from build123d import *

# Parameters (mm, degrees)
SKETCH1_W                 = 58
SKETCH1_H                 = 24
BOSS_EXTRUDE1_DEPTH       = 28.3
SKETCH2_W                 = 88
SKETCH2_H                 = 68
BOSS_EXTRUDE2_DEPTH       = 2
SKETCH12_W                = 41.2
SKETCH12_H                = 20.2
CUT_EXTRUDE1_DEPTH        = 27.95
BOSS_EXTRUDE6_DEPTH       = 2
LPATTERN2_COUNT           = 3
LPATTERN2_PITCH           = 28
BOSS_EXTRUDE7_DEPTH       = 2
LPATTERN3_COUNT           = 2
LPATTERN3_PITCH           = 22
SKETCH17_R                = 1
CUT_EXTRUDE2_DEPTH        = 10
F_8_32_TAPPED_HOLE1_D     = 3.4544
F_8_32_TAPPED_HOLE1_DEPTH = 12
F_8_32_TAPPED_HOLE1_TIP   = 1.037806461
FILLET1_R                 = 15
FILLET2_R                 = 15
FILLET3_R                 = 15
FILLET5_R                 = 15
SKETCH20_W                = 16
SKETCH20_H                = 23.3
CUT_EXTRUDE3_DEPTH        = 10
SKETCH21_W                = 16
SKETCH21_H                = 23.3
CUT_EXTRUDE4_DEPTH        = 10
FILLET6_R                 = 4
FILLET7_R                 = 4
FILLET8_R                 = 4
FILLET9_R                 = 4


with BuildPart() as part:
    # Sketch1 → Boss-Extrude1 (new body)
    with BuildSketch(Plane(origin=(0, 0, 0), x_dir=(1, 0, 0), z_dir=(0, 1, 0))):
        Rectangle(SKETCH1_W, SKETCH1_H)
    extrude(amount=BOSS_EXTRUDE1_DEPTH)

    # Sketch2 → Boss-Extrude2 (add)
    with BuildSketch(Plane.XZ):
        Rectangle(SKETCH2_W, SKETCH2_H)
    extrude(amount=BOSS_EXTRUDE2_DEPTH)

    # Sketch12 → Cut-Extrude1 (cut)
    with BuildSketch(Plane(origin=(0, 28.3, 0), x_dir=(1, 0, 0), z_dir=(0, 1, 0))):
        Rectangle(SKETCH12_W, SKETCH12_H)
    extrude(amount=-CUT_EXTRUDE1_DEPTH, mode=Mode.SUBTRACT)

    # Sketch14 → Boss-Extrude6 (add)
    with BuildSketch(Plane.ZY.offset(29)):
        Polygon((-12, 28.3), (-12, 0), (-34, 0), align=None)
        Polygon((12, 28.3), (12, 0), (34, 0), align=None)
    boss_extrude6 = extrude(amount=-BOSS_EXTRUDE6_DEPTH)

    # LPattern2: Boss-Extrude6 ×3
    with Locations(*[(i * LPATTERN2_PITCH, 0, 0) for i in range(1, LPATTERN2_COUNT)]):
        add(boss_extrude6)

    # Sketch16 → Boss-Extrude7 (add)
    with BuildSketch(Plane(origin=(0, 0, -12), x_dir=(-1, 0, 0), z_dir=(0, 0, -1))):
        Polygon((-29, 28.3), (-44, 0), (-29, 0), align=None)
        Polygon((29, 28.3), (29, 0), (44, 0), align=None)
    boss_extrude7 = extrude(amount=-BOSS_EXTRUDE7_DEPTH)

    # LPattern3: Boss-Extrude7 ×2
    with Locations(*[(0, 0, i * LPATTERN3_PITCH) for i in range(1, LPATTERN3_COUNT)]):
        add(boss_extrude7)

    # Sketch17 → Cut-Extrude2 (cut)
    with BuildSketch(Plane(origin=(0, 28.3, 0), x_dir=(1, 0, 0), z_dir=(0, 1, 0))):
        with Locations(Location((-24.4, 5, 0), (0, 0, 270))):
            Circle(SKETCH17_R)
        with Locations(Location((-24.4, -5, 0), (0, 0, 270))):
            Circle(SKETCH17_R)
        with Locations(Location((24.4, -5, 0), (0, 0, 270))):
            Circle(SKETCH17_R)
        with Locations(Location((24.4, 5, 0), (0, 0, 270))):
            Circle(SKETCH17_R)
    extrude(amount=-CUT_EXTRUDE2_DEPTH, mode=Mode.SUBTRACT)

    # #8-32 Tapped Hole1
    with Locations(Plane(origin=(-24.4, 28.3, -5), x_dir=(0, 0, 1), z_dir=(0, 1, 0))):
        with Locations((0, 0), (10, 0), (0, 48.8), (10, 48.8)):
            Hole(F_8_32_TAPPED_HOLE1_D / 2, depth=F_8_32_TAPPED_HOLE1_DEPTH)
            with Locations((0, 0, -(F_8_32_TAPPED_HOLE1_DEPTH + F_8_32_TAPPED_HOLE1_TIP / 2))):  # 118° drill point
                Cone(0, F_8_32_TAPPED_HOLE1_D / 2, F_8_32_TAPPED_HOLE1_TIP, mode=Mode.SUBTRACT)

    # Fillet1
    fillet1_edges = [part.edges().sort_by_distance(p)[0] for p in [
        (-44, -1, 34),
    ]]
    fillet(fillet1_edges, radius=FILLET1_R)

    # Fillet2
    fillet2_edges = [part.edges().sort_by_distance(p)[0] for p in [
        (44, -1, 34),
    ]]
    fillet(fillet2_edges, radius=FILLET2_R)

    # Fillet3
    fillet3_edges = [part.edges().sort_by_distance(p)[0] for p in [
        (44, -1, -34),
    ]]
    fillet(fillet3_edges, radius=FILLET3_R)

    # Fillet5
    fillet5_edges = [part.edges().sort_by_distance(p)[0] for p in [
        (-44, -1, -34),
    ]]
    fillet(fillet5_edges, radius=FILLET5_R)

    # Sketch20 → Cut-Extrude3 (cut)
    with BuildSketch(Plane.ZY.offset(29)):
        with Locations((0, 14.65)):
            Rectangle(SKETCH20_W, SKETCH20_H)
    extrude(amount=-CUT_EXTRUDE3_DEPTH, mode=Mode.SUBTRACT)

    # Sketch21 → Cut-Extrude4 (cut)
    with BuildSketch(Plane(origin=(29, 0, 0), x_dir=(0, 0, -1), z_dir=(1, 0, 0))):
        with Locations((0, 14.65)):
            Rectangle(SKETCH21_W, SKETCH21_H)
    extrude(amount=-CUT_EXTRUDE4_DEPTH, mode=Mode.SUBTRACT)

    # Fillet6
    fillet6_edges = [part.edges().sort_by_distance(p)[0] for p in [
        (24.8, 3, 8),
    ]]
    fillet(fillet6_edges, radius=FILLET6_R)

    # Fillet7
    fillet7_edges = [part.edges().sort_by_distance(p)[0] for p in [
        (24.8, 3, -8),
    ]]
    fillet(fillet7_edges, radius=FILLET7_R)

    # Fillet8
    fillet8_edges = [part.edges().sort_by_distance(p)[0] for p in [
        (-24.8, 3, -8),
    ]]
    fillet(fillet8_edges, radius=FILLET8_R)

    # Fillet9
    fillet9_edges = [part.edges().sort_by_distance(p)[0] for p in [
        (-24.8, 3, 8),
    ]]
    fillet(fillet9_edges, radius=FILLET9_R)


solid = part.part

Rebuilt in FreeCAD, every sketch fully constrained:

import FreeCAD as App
import Part
import Sketcher
from FreeCAD import Vector
Q = App.Units.Quantity


def edges_at(feature, points):
    """Names of the edges that pass closest to the given points."""
    edges = feature.Shape.Edges
    near = lambda p: min(range(len(edges)), key=lambda i: edges[i].distToShape(Part.Vertex(*p))[0])
    return sorted({f"Edge{near(p) + 1}" for p in points})


def add_polygon(sketch, points):
    """Adds a closed chain of lines whose ends are joined by coincident constraints."""
    first, n = sketch.GeometryCount, len(points)
    for a, b in zip(points, points[1:] + points[:1]):
        sketch.addGeometry(Part.LineSegment(App.Vector(*a, 0), App.Vector(*b, 0)), False)
    for i in range(n):
        sketch.addConstraint(Sketcher.Constraint("Coincident", first + i, 2, first + (i + 1) % n, 1))

doc = App.newDocument("Part")
body = doc.addObject("PartDesign::Body", "Body")

# Sketch on XZ plane
sketch1 = body.newObject("Sketcher::SketchObject", "Sketch")
sketch1.AttachmentSupport = (doc.getObject("XZ_Plane"), [""])
sketch1.MapMode = "FlatFace"
add_polygon(sketch1, [(-29, -12), (-29, 12), (29, 12), (29, -12)])  # lines 0-3
sketch1.addConstraint([
    Sketcher.Constraint("Vertical", 0),
    Sketcher.Constraint("Horizontal", 1),
    Sketcher.Constraint("Vertical", 2),
    Sketcher.Constraint("Horizontal", 3),
    Sketcher.Constraint("Symmetric", 0, 2, 2, 2, -1, 1),
    Sketcher.Constraint("DistanceX", 1, 1, 1, 2, Q("58 mm")),
    Sketcher.Constraint("DistanceY", 0, 1, 0, 2, Q("24 mm")),
])
pad1 = body.newObject("PartDesign::Pad", "Pad")
pad1.Profile = sketch1
pad1.Length = 28.3
pad1.Reversed = True

# Sketch on XZ plane
sketch2 = body.newObject("Sketcher::SketchObject", "Sketch001")
sketch2.AttachmentSupport = (doc.getObject("XZ_Plane"), [""])
sketch2.MapMode = "FlatFace"
add_polygon(sketch2, [(-44, 34), (-44, -34), (44, -34), (44, 34)])  # lines 0-3
sketch2.addConstraint([
    Sketcher.Constraint("Vertical", 0),
    Sketcher.Constraint("Horizontal", 1),
    Sketcher.Constraint("Vertical", 2),
    Sketcher.Constraint("Horizontal", 3),
    Sketcher.Constraint("Symmetric", 0, 2, 2, 2, -1, 1),
    Sketcher.Constraint("DistanceX", 1, 1, 1, 2, Q("88 mm")),
    Sketcher.Constraint("DistanceY", 0, 2, 0, 1, Q("68 mm")),
])
pad2 = body.newObject("PartDesign::Pad", "Pad001")
pad2.Profile = sketch2
pad2.Length = 2

# Sketch on XZ plane
sketch3 = body.newObject("Sketcher::SketchObject", "Sketch002")
sketch3.AttachmentSupport = (doc.getObject("XZ_Plane"), [""])
sketch3.MapMode = "FlatFace"
sketch3.AttachmentOffset = App.Placement(Vector(0, 0, -28.3), App.Rotation())
add_polygon(sketch3, [(-20.6, -10.1), (-20.6, 10.1), (20.6, 10.1), (20.6, -10.1)])  # lines 0-3
sketch3.addConstraint([
    Sketcher.Constraint("Vertical", 0),
    Sketcher.Constraint("Horizontal", 1),
    Sketcher.Constraint("Vertical", 2),
    Sketcher.Constraint("Horizontal", 3),
    Sketcher.Constraint("Symmetric", 0, 2, 2, 2, -1, 1),
    Sketcher.Constraint("DistanceX", 1, 1, 1, 2, Q("41.2 mm")),
    Sketcher.Constraint("DistanceY", 0, 1, 0, 2, Q("20.2 mm")),
])
pocket1 = body.newObject("PartDesign::Pocket", "Pocket")
pocket1.Profile = sketch3
pocket1.Length = 27.95
pocket1.Reversed = True

# Sketch on YZ plane
sketch4 = body.newObject("Sketcher::SketchObject", "Sketch003")
sketch4.AttachmentSupport = (doc.getObject("YZ_Plane"), [""])
sketch4.MapMode = "FlatFace"
sketch4.AttachmentOffset = App.Placement(Vector(0, 0, -29), App.Rotation())
add_polygon(sketch4, [(0, -12), (28.3, -12), (0, -34)])  # lines 0-2
add_polygon(sketch4, [(28.3, 12), (0, 12), (0, 34)])  # lines 3-5
sketch4.addConstraint([
    Sketcher.Constraint("Horizontal", 0),
    Sketcher.Constraint("Vertical", 2),
    Sketcher.Constraint("Horizontal", 3),
    Sketcher.Constraint("Vertical", 4),
    Sketcher.Constraint("Symmetric", 2, 2, 3, 2, -1, 1),
    Sketcher.Constraint("Symmetric", 1, 2, 4, 2, -1),
    Sketcher.Constraint("Vertical", 0, 2, 5, 2),
    Sketcher.Constraint("DistanceY", 2, 1, 2, 2, Q("22 mm")),
    Sketcher.Constraint("DistanceX", 0, 1, 0, 2, Q("28.3 mm")),
    Sketcher.Constraint("DistanceY", 0, 2, -1, 1, Q("12 mm")),
])
pad3 = body.newObject("PartDesign::Pad", "Pad002")
pad3.Profile = sketch4
pad3.Length = 2
doc.recompute()

linearpattern = body.newObject("PartDesign::LinearPattern", "LinearPattern")
linearpattern.Originals = [pad3]
linearpattern.Direction = (doc.getObject("X_Axis"), [""])
linearpattern.Mode = "offset"
linearpattern.Offset = 28
linearpattern.Occurrences = 3
body.Tip = linearpattern

# Sketch on XY plane
sketch5 = body.newObject("Sketcher::SketchObject", "Sketch004")
sketch5.AttachmentSupport = (doc.getObject("XY_Plane"), [""])
sketch5.MapMode = "FlatFace"
sketch5.AttachmentOffset = App.Placement(Vector(0, 0, -12), App.Rotation())
add_polygon(sketch5, [(29, 28.3), (44, 0), (29, 0)])  # lines 0-2
add_polygon(sketch5, [(-29, 28.3), (-29, 0), (-44, 0)])  # lines 3-5
sketch5.addConstraint([
    Sketcher.Constraint("Horizontal", 1),
    Sketcher.Constraint("Vertical", 2),
    Sketcher.Constraint("Vertical", 3),
    Sketcher.Constraint("Horizontal", 4),
    Sketcher.Constraint("Symmetric", 1, 2, 3, 2, -1, 1),
    Sketcher.Constraint("Symmetric", 0, 2, 4, 2, -2),
    Sketcher.Constraint("Horizontal", 2, 2, 5, 2),
    Sketcher.Constraint("DistanceX", 1, 2, 1, 1, Q("15 mm")),
    Sketcher.Constraint("DistanceY", 2, 1, 2, 2, Q("28.3 mm")),
    Sketcher.Constraint("DistanceX", -1, 1, 0, 2, Q("44 mm")),
])
pad4 = body.newObject("PartDesign::Pad", "Pad003")
pad4.Profile = sketch5
pad4.Length = 2
doc.recompute()

linearpattern2 = body.newObject("PartDesign::LinearPattern", "LinearPattern001")
linearpattern2.Originals = [pad4]
linearpattern2.Direction = (doc.getObject("Z_Axis"), [""])
linearpattern2.Mode = "offset"
linearpattern2.Offset = 22
linearpattern2.Occurrences = 2
body.Tip = linearpattern2

# Sketch on XZ plane
sketch6 = body.newObject("Sketcher::SketchObject", "Sketch005")
sketch6.AttachmentSupport = (doc.getObject("XZ_Plane"), [""])
sketch6.MapMode = "FlatFace"
sketch6.AttachmentOffset = App.Placement(Vector(0, 0, -28.3), App.Rotation())
sketch6.addGeometry([
    Part.Circle(Vector(-24.4, -5, 0), Vector(0, 0, 1), 1),
    Part.Circle(Vector(-24.4, 5, 0), Vector(0, 0, 1), 1),
    Part.Circle(Vector(24.4, 5, 0), Vector(0, 0, 1), 1),
    Part.Circle(Vector(24.4, -5, 0), Vector(0, 0, 1), 1),
], False)
sketch6.addConstraint([
    Sketcher.Constraint("Equal", 0, 1),
    Sketcher.Constraint("Equal", 1, 2),
    Sketcher.Constraint("Equal", 2, 3),
    Sketcher.Constraint("Symmetric", 0, 3, 2, 3, -1, 1),
    Sketcher.Constraint("Symmetric", 1, 3, 3, 3, -1, 1),
    Sketcher.Constraint("Symmetric", 1, 3, 2, 3, -2),
    Sketcher.Constraint("Diameter", 0, Q("2 mm")),
    Sketcher.Constraint("DistanceY", 0, 3, -1, 1, Q("5 mm")),
    Sketcher.Constraint("DistanceX", 0, 3, -1, 1, Q("24.4 mm")),
])
pocket2 = body.newObject("PartDesign::Pocket", "Pocket001")
pocket2.Profile = sketch6
pocket2.Length = 10
pocket2.Reversed = True

# Sketch on XZ plane
sketch7 = body.newObject("Sketcher::SketchObject", "Sketch006")
sketch7.AttachmentSupport = (doc.getObject("XZ_Plane"), [""])
sketch7.MapMode = "FlatFace"
sketch7.AttachmentOffset = App.Placement(Vector(0, 0, -28.3), App.Rotation())
sketch7.addGeometry([
    Part.Circle(Vector(-24.4, -5, 0), Vector(0, 0, 1), 1.7272),
    Part.Circle(Vector(-24.4, 5, 0), Vector(0, 0, 1), 1.7272),
    Part.Circle(Vector(24.4, -5, 0), Vector(0, 0, 1), 1.7272),
    Part.Circle(Vector(24.4, 5, 0), Vector(0, 0, 1), 1.7272),
], False)
sketch7.addConstraint([
    Sketcher.Constraint("Equal", 0, 1),
    Sketcher.Constraint("Equal", 1, 2),
    Sketcher.Constraint("Equal", 2, 3),
    Sketcher.Constraint("Symmetric", 1, 3, 2, 3, -1, 1),
    Sketcher.Constraint("Symmetric", 0, 3, 3, 3, -1, 1),
    Sketcher.Constraint("Symmetric", 0, 3, 2, 3, -2),
    Sketcher.Constraint("DistanceY", 0, 3, -1, 1, Q("5 mm")),
    Sketcher.Constraint("Diameter", 0, Q("3.4544 mm")),
    Sketcher.Constraint("DistanceX", 0, 3, -1, 1, Q("24.4 mm")),
])
doc.recompute()
hole = body.newObject("PartDesign::Hole", "Hole")
hole.Profile = sketch7
hole.ThreadType = "None"
hole.Diameter = 3.4544
hole.DepthType = "Dimension"
hole.Depth = 12
hole.DrillPoint = "Angled"
hole.DrillPointAngle = 118
hole.Reversed = True
doc.recompute()

fillet = body.newObject("PartDesign::Fillet", "Fillet")
fillet.Base = (hole, edges_at(hole, [(-44, -1, 34)]))
fillet.Radius = 15
doc.recompute()

fillet2 = body.newObject("PartDesign::Fillet", "Fillet001")
fillet2.Base = (fillet, edges_at(fillet, [(44, -1, 34)]))
fillet2.Radius = 15
doc.recompute()

fillet3 = body.newObject("PartDesign::Fillet", "Fillet002")
fillet3.Base = (fillet2, edges_at(fillet2, [(44, -1, -34)]))
fillet3.Radius = 15
doc.recompute()

fillet4 = body.newObject("PartDesign::Fillet", "Fillet003")
fillet4.Base = (fillet3, edges_at(fillet3, [(-44, -1, -34)]))
fillet4.Radius = 15

# Sketch on YZ plane
sketch8 = body.newObject("Sketcher::SketchObject", "Sketch007")
sketch8.AttachmentSupport = (doc.getObject("YZ_Plane"), [""])
sketch8.MapMode = "FlatFace"
sketch8.AttachmentOffset = App.Placement(Vector(0, 0, -29), App.Rotation())
add_polygon(sketch8, [(26.3, -8), (3, -8), (3, 8), (26.3, 8)])  # lines 0-3
sketch8.addConstraint([
    Sketcher.Constraint("Horizontal", 0),
    Sketcher.Constraint("Vertical", 1),
    Sketcher.Constraint("Horizontal", 2),
    Sketcher.Constraint("Vertical", 3),
    Sketcher.Constraint("DistanceY", 1, 1, 1, 2, Q("16 mm")),
    Sketcher.Constraint("DistanceX", 0, 2, 0, 1, Q("23.3 mm")),
    Sketcher.Constraint("DistanceX", -1, 1, 0, 2, Q("3 mm")),
    Sketcher.Constraint("DistanceY", 0, 2, -1, 1, Q("8 mm")),
])
pocket3 = body.newObject("PartDesign::Pocket", "Pocket002")
pocket3.Profile = sketch8
pocket3.Length = 10
pocket3.Reversed = True

# Sketch on YZ plane
sketch9 = body.newObject("Sketcher::SketchObject", "Sketch008")
sketch9.AttachmentSupport = (doc.getObject("YZ_Plane"), [""])
sketch9.MapMode = "FlatFace"
sketch9.AttachmentOffset = App.Placement(Vector(0, 0, 29), App.Rotation())
add_polygon(sketch9, [(26.3, 8), (3, 8), (3, -8), (26.3, -8)])  # lines 0-3
sketch9.addConstraint([
    Sketcher.Constraint("Horizontal", 0),
    Sketcher.Constraint("Vertical", 1),
    Sketcher.Constraint("Horizontal", 2),
    Sketcher.Constraint("Vertical", 3),
    Sketcher.Constraint("DistanceY", 1, 2, 1, 1, Q("16 mm")),
    Sketcher.Constraint("DistanceX", 0, 2, 0, 1, Q("23.3 mm")),
    Sketcher.Constraint("DistanceX", -1, 1, 0, 2, Q("3 mm")),
    Sketcher.Constraint("DistanceY", -1, 1, 0, 2, Q("8 mm")),
])
pocket4 = body.newObject("PartDesign::Pocket", "Pocket003")
pocket4.Profile = sketch9
pocket4.Length = 10
doc.recompute()

fillet5 = body.newObject("PartDesign::Fillet", "Fillet004")
fillet5.Base = (pocket4, edges_at(pocket4, [(24.8, 3, 8)]))
fillet5.Radius = 4
doc.recompute()

fillet6 = body.newObject("PartDesign::Fillet", "Fillet005")
fillet6.Base = (fillet5, edges_at(fillet5, [(24.8, 3, -8)]))
fillet6.Radius = 4
doc.recompute()

fillet7 = body.newObject("PartDesign::Fillet", "Fillet006")
fillet7.Base = (fillet6, edges_at(fillet6, [(-24.8, 3, -8)]))
fillet7.Radius = 4
doc.recompute()

fillet8 = body.newObject("PartDesign::Fillet", "Fillet007")
fillet8.Base = (fillet7, edges_at(fillet7, [(-24.8, 3, 8)]))
fillet8.Radius = 4

doc.recompute()
